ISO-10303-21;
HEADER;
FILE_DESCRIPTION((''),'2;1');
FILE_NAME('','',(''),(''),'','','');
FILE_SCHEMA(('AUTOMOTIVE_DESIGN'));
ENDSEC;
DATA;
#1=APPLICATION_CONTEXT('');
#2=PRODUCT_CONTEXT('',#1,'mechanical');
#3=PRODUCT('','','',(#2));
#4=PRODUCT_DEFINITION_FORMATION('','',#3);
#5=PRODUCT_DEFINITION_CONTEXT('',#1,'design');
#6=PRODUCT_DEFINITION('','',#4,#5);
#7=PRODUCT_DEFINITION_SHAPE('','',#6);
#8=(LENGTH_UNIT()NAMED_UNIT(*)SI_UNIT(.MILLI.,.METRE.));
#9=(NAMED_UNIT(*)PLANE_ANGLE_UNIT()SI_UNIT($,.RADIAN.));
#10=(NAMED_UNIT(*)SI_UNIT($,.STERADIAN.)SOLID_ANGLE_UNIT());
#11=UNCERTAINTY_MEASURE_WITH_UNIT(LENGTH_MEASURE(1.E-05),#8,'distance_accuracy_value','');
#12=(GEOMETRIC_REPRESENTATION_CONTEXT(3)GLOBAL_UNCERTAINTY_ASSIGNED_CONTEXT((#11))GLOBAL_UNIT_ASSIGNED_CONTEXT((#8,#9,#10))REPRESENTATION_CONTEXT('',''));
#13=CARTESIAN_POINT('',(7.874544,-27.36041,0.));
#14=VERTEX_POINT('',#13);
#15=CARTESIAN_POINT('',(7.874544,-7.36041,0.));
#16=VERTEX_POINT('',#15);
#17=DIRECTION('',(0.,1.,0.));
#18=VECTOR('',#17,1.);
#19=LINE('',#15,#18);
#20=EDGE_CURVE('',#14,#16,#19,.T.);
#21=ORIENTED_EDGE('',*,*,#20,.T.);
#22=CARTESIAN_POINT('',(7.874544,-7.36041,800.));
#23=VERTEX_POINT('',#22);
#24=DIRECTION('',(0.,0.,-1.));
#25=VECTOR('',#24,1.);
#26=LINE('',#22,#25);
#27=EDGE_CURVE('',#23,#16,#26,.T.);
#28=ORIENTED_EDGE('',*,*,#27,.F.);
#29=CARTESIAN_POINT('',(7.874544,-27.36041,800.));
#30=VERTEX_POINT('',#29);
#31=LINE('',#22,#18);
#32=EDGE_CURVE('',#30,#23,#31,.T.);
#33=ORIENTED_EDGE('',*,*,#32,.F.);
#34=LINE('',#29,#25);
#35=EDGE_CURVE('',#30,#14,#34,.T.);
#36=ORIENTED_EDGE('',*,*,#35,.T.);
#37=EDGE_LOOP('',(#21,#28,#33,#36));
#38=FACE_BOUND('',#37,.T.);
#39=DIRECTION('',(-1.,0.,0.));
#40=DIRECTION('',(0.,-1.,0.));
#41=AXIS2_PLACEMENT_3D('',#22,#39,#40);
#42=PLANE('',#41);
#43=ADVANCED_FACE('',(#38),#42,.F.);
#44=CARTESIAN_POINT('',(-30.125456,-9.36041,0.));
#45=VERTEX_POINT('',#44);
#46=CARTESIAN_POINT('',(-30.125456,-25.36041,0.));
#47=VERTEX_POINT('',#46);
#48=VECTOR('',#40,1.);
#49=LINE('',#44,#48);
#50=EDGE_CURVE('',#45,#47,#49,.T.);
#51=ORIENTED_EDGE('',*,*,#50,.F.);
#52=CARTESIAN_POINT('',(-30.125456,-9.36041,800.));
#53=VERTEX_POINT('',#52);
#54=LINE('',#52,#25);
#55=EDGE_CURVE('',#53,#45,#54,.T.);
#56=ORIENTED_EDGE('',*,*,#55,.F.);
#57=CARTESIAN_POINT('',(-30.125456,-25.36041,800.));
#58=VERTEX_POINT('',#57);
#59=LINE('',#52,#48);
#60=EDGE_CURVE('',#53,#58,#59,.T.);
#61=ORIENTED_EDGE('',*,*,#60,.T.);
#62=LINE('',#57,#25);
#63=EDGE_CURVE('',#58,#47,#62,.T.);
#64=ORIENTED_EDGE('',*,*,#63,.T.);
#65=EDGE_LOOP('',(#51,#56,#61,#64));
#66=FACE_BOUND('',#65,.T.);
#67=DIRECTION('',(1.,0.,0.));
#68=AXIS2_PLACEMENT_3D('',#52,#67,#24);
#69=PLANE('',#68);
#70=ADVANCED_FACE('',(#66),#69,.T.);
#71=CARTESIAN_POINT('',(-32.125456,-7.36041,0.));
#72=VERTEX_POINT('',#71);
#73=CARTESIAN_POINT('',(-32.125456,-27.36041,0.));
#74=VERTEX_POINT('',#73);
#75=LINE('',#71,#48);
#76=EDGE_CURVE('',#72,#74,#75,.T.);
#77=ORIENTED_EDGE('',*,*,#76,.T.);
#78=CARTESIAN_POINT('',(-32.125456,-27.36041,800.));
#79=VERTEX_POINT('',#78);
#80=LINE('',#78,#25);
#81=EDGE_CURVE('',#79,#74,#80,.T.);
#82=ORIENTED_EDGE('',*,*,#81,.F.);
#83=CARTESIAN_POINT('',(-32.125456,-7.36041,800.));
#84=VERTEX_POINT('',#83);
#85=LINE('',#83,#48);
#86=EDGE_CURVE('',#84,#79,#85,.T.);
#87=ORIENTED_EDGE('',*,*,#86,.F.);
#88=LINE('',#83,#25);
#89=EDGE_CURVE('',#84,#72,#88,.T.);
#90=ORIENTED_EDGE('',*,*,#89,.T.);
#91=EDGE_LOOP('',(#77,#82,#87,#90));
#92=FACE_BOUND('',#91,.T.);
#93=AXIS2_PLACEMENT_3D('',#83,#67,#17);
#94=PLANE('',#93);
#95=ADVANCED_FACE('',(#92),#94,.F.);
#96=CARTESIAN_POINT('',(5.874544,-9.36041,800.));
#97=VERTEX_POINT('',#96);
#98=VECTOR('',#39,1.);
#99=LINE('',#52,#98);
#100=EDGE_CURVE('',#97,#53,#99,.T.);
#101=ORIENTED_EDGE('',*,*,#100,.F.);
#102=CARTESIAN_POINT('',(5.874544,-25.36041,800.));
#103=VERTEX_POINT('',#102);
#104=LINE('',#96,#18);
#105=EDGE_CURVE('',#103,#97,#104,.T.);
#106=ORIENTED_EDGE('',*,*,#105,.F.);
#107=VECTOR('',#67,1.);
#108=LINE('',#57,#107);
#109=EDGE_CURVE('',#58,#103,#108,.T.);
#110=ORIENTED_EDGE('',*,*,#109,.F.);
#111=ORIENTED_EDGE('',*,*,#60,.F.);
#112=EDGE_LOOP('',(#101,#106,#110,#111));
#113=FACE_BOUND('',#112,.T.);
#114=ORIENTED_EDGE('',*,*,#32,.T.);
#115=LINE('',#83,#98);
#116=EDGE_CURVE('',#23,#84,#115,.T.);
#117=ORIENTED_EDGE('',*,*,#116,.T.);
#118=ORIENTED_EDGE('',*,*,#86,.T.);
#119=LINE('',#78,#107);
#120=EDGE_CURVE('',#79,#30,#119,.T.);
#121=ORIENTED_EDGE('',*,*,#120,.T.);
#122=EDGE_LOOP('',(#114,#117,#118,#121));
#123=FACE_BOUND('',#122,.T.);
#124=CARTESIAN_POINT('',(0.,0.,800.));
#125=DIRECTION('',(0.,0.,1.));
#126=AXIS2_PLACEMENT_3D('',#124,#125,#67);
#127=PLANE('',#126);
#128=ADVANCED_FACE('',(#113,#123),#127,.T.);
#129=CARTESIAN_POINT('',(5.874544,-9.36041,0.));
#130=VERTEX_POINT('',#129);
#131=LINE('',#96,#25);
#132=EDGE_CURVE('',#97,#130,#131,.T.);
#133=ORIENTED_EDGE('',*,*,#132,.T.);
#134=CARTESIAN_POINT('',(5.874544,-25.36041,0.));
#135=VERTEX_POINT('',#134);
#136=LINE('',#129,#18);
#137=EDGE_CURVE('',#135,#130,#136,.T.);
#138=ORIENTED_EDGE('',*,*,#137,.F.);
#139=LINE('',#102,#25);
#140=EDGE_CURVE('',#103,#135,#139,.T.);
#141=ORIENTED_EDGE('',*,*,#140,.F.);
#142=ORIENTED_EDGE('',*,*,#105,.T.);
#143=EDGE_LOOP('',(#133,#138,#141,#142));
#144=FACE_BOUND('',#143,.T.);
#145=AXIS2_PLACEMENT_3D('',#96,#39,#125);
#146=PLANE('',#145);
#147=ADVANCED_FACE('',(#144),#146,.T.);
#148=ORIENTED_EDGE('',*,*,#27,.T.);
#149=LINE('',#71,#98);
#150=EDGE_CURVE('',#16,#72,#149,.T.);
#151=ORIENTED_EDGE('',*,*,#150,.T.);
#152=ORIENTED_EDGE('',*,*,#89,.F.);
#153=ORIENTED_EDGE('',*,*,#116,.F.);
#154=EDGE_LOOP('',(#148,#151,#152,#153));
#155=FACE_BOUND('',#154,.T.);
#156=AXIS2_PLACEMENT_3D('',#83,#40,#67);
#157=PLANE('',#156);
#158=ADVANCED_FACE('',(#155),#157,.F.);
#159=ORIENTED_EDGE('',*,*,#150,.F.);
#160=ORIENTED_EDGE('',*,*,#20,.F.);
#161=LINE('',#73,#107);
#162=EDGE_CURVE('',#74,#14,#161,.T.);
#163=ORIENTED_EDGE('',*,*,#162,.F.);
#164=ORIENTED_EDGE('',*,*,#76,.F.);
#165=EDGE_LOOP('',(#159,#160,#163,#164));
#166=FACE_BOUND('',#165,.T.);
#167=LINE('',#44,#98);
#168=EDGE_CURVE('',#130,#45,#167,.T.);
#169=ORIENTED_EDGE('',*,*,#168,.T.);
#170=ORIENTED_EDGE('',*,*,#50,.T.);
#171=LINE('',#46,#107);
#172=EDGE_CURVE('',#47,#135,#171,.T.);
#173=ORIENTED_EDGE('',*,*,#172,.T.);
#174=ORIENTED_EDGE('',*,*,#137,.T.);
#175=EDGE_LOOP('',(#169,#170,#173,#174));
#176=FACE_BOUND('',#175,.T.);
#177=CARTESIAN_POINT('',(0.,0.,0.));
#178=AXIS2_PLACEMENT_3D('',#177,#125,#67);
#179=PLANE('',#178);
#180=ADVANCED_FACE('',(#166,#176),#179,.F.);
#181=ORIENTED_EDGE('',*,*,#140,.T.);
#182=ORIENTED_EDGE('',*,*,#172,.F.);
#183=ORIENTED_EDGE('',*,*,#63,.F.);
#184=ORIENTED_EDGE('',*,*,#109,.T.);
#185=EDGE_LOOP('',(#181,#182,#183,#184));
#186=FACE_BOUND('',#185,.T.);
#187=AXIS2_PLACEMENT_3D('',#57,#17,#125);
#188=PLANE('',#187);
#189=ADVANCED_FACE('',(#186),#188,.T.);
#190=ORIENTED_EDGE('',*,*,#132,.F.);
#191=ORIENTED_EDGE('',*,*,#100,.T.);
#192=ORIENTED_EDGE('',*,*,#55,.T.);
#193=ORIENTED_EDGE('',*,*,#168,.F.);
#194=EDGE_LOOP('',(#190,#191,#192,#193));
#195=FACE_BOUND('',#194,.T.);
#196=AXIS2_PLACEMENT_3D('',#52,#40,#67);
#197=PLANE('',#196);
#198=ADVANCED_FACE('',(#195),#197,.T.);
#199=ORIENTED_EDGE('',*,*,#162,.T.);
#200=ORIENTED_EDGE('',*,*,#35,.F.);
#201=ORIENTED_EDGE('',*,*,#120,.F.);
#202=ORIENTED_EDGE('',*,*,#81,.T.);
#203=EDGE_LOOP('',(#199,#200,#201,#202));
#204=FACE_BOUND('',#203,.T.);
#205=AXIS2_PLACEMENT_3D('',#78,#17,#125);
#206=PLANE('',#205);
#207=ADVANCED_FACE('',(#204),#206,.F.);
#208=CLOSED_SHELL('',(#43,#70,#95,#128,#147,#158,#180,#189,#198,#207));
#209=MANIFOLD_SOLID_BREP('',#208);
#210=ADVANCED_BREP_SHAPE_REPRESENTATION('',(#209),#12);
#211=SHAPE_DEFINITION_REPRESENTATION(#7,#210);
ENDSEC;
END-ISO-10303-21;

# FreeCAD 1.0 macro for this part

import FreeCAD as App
import Part
import Sketcher

V = App.Vector
Q = App.Units.Quantity

doc = App.newDocument("Part")
body = doc.addObject("PartDesign::Body", "Body")

sketch1 = body.newObject("Sketcher::SketchObject", "Sketch")
sketch1.AttachmentSupport = (doc.getObject("XY_Plane"), [""])
sketch1.MapMode = "FlatFace"
sketch1.addGeometry([
    Part.LineSegment(V(-32, -7, 0), V(-32, -27, 0)),
    Part.LineSegment(V(-32, -27, 0), V(8, -27, 0)),
    Part.LineSegment(V(8, -27, 0), V(8, -7, 0)),
    Part.LineSegment(V(8, -7, 0), V(-32, -7, 0)),
    Part.LineSegment(V(6, -25, 0), V(-30, -25, 0)),
    Part.LineSegment(V(-30, -25, 0), V(-30, -9, 0)),
    Part.LineSegment(V(-30, -9, 0), V(6, -9, 0)),
    Part.LineSegment(V(6, -9, 0), V(6, -25, 0)),
], False)
sketch1.addConstraint([
    Sketcher.Constraint("Coincident", 0, 2, 1, 1),
    Sketcher.Constraint("Coincident", 1, 2, 2, 1),
    Sketcher.Constraint("Coincident", 2, 2, 3, 1),
    Sketcher.Constraint("Coincident", 3, 2, 0, 1),
    Sketcher.Constraint("Coincident", 4, 2, 5, 1),
    Sketcher.Constraint("Coincident", 5, 2, 6, 1),
    Sketcher.Constraint("Coincident", 6, 2, 7, 1),
    Sketcher.Constraint("Coincident", 7, 2, 4, 1),
    Sketcher.Constraint("Vertical", 0),
    Sketcher.Constraint("Horizontal", 1),
    Sketcher.Constraint("Vertical", 2),
    Sketcher.Constraint("Horizontal", 3),
    Sketcher.Constraint("Horizontal", 4),
    Sketcher.Constraint("Vertical", 5),
    Sketcher.Constraint("Horizontal", 6),
    Sketcher.Constraint("Vertical", 7),
    Sketcher.Constraint("DistanceX", 1, 1, 1, 2, Q("40 mm")),
    Sketcher.Constraint("DistanceX", 4, 2, 4, 1, Q("36 mm")),
    Sketcher.Constraint("DistanceY", 0, 2, 0, 1, Q("20 mm")),
    Sketcher.Constraint("DistanceY", 5, 1, 5, 2, Q("16 mm")),
    Sketcher.Constraint("DistanceX", 0, 2, 4, 2, Q("2 mm")),
    Sketcher.Constraint("DistanceY", 0, 2, 4, 2, Q("2 mm")),
    Sketcher.Constraint("DistanceY", 0, 2, -1, 1, Q("27.36041 mm")),
    Sketcher.Constraint("DistanceX", 0, 2, -1, 1, Q("32.125456 mm")),
])
pad1 = body.newObject("PartDesign::Pad", "Pad")
pad1.Profile = sketch1
pad1.Length = 800

doc.recompute()
